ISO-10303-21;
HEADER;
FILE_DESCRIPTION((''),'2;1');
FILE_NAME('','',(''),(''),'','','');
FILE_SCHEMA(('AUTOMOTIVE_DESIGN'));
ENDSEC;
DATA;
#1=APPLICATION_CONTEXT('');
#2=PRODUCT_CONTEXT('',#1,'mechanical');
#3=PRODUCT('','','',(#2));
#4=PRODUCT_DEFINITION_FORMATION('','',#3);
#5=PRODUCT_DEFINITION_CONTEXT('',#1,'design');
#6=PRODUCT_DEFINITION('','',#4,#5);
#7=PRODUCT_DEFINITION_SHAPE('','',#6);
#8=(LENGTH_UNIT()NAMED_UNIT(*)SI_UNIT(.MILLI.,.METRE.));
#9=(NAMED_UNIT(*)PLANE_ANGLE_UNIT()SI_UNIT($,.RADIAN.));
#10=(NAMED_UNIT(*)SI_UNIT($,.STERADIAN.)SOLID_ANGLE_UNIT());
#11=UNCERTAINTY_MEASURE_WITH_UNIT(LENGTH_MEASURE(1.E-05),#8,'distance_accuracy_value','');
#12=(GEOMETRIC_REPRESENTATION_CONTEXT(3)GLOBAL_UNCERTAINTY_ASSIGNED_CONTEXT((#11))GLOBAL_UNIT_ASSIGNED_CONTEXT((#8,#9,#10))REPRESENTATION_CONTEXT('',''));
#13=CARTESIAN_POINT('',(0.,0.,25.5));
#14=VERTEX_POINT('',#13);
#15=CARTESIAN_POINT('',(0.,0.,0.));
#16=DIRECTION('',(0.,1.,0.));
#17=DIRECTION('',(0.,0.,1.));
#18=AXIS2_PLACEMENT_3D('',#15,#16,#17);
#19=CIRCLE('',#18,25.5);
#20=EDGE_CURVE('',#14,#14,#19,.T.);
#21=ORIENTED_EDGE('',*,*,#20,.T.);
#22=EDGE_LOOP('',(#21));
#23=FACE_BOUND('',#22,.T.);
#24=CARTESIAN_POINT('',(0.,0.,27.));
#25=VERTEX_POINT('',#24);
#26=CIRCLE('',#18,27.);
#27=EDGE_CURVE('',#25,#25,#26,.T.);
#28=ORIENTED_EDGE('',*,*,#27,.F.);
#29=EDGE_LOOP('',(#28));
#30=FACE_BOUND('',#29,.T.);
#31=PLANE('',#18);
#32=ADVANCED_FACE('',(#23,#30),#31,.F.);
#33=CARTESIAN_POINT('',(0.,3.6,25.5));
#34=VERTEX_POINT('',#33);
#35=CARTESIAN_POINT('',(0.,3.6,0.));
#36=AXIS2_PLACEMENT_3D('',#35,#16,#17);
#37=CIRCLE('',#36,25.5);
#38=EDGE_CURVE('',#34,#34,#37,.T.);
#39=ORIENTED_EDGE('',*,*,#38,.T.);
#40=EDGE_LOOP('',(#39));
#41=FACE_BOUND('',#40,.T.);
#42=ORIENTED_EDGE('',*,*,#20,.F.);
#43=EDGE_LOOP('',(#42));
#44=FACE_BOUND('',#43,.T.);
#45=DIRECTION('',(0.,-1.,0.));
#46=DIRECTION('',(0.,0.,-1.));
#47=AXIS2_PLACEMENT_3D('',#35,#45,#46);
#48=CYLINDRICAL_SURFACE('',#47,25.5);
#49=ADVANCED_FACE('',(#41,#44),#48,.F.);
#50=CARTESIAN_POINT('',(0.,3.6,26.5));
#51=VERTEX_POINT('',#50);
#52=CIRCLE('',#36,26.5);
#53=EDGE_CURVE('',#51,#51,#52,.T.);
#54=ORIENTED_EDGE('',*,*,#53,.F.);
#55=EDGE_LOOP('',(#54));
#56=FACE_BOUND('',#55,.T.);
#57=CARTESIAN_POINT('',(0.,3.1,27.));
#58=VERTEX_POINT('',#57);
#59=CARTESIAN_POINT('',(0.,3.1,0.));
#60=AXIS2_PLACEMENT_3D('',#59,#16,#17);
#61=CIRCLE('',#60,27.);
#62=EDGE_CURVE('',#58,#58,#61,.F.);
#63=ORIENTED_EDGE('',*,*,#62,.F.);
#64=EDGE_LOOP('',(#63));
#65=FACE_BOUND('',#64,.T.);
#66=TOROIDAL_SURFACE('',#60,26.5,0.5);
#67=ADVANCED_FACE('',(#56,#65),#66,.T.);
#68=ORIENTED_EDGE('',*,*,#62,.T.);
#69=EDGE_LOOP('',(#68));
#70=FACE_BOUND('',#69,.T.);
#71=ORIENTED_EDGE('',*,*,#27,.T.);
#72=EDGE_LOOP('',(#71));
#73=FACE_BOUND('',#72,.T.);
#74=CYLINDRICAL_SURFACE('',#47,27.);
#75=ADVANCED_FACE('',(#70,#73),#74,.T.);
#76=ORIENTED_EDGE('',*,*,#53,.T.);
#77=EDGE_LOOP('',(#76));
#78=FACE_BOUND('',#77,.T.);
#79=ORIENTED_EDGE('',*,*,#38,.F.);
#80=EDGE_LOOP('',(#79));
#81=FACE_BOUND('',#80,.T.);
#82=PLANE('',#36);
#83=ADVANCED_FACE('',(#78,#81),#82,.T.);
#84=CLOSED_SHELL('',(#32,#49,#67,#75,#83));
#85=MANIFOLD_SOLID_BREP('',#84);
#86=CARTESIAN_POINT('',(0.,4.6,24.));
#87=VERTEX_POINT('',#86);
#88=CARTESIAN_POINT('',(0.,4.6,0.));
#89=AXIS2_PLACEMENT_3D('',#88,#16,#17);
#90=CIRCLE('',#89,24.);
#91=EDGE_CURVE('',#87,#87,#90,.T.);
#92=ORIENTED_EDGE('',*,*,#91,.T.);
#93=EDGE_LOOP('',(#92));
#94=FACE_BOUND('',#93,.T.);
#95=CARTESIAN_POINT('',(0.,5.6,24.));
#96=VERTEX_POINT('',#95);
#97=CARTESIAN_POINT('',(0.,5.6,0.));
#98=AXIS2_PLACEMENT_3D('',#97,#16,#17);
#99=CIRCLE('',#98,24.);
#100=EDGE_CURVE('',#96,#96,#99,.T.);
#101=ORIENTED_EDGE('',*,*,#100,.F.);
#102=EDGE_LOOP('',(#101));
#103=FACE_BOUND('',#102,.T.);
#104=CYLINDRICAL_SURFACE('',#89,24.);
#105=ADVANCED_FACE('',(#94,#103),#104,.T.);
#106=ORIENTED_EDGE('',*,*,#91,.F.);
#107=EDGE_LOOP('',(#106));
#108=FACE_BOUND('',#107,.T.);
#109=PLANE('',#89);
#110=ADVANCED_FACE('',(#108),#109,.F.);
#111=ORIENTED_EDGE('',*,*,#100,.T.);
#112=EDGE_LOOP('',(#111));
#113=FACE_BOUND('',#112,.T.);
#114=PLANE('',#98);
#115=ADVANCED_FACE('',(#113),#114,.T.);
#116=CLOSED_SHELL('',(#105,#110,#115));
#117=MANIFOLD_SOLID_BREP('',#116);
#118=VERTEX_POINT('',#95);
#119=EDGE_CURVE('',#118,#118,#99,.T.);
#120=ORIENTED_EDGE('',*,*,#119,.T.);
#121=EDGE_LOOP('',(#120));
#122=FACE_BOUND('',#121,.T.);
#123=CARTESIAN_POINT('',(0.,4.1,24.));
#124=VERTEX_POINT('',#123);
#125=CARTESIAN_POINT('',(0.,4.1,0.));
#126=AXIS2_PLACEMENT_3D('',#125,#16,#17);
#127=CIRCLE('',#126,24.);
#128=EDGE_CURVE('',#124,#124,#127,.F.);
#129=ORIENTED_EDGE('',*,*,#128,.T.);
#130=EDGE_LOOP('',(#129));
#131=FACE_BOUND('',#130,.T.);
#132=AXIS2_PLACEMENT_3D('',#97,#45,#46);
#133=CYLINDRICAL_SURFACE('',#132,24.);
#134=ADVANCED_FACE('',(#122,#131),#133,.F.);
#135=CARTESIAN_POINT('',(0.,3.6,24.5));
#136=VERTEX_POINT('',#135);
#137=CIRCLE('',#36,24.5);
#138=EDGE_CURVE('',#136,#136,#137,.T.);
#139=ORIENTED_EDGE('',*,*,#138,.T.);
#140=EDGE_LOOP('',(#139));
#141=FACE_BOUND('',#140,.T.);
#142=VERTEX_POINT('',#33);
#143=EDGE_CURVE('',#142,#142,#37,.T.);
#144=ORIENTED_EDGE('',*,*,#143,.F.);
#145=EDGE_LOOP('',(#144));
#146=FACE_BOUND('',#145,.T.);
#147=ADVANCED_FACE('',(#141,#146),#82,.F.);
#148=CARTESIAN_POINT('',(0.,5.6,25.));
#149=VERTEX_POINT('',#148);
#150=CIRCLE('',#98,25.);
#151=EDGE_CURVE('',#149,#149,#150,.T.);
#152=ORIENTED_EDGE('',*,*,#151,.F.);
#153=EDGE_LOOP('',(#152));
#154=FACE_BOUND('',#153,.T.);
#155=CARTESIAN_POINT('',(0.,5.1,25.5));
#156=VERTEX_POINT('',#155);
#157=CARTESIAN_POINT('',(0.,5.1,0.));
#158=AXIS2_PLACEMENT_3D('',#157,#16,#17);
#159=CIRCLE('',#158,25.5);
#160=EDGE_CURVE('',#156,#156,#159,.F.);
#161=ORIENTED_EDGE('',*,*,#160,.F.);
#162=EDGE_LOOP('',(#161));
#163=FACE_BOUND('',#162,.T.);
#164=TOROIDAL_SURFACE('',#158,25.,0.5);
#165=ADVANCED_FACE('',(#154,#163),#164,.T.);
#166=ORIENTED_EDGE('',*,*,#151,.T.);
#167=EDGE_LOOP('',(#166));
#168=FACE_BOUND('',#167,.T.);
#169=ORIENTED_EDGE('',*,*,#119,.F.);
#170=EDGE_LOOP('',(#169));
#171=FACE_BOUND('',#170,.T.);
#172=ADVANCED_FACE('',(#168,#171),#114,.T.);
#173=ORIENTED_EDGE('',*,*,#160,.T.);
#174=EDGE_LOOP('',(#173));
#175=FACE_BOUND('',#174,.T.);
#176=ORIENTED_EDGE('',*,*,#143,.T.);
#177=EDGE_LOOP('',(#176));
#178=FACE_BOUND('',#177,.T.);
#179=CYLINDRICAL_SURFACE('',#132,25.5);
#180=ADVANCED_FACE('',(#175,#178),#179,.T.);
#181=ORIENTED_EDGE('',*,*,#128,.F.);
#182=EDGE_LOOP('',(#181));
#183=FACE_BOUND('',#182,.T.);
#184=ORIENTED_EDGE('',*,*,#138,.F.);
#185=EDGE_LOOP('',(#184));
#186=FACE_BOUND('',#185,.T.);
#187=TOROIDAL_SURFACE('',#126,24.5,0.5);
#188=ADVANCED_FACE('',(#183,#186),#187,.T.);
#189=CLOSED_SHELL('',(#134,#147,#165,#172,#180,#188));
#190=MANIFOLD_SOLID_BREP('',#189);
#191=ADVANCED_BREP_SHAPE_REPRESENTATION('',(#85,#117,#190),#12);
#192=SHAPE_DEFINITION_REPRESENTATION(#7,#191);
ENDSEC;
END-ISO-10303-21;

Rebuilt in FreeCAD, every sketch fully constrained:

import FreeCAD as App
import Part
import Sketcher
from FreeCAD import Vector
Q = App.Units.Quantity


def edges_at(feature, points):
    """Names of the edges that pass closest to the given points."""
    edges = feature.Shape.Edges
    near = lambda p: min(range(len(edges)), key=lambda i: edges[i].distToShape(Part.Vertex(*p))[0])
    return sorted({f"Edge{near(p) + 1}" for p in points})

doc = App.newDocument("Part")
body = doc.addObject("PartDesign::Body", "Body")

sketch1 = body.newObject("Sketcher::SketchObject", "Sketch")
sketch1.AttachmentSupport = (doc.getObject("XZ_Plane"), [""])
sketch1.MapMode = "FlatFace"
sketch1.addGeometry(Part.Circle(Vector(0, 0, 0), Vector(0, 0, 1), 27), False)
sketch1.addGeometry(Part.Circle(Vector(0, 0, 0), Vector(0, 0, 1), 25.5), False)
sketch1.addConstraint(Sketcher.Constraint("Coincident", 0, 3, -1, 1))
sketch1.addConstraint(Sketcher.Constraint("Coincident", 1, 3, -1, 1))
sketch1.addConstraint(Sketcher.Constraint("Diameter", 0, Q("54 mm")))
sketch1.addConstraint(Sketcher.Constraint("Diameter", 1, Q("51 mm")))
pad1 = body.newObject("PartDesign::Pad", "Pad")
pad1.Profile = sketch1
pad1.Length = 3.6
pad1.Reversed = True
doc.recompute()

fillet = body.newObject("PartDesign::Fillet", "Fillet")
fillet.Base = (pad1, edges_at(pad1, [(0, 3.6, -27)]))
fillet.Radius = 0.5
body2 = doc.addObject("PartDesign::Body", "Body001")

sketch2 = body2.newObject("Sketcher::SketchObject", "Sketch001")
sketch2.AttachmentSupport = (doc.getObject("XZ_Plane001"), [""])
sketch2.MapMode = "FlatFace"
sketch2.AttachmentOffset = App.Placement(Vector(0, 0, -3.6), App.Rotation())
sketch2.addGeometry(Part.Circle(Vector(0, 0, 0), Vector(0, 0, 1), 25.5), False)
sketch2.addGeometry(Part.Circle(Vector(0, 0, 0), Vector(0, 0, 1), 24), False)
sketch2.addConstraint(Sketcher.Constraint("Coincident", 0, 3, -1, 1))
sketch2.addConstraint(Sketcher.Constraint("Coincident", 1, 3, -1, 1))
sketch2.addConstraint(Sketcher.Constraint("Diameter", 0, Q("51 mm")))
sketch2.addConstraint(Sketcher.Constraint("Diameter", 1, Q("48 mm")))
pad2 = body2.newObject("PartDesign::Pad", "Pad001")
pad2.Profile = sketch2
pad2.Length = 2
pad2.Reversed = True
doc.recompute()

fillet2 = body2.newObject("PartDesign::Fillet", "Fillet001")
fillet2.Base = (pad2, edges_at(pad2, [(0, 5.6, -25.5), (0, 3.6, -24)]))
fillet2.Radius = 0.5
body3 = doc.addObject("PartDesign::Body", "Body002")

sketch3 = body3.newObject("Sketcher::SketchObject", "Sketch002")
sketch3.AttachmentSupport = (doc.getObject("XZ_Plane002"), [""])
sketch3.MapMode = "FlatFace"
sketch3.AttachmentOffset = App.Placement(Vector(0, 0, -5.6), App.Rotation())
sketch3.addGeometry(Part.Circle(Vector(0, 0, 0), Vector(0, 0, 1), 24), False)
sketch3.addConstraint(Sketcher.Constraint("Coincident", 0, 3, -1, 1))
sketch3.addConstraint(Sketcher.Constraint("Diameter", 0, Q("48 mm")))
pad3 = body3.newObject("PartDesign::Pad", "Pad002")
pad3.Profile = sketch3
pad3.Length = 1

doc.recompute()
